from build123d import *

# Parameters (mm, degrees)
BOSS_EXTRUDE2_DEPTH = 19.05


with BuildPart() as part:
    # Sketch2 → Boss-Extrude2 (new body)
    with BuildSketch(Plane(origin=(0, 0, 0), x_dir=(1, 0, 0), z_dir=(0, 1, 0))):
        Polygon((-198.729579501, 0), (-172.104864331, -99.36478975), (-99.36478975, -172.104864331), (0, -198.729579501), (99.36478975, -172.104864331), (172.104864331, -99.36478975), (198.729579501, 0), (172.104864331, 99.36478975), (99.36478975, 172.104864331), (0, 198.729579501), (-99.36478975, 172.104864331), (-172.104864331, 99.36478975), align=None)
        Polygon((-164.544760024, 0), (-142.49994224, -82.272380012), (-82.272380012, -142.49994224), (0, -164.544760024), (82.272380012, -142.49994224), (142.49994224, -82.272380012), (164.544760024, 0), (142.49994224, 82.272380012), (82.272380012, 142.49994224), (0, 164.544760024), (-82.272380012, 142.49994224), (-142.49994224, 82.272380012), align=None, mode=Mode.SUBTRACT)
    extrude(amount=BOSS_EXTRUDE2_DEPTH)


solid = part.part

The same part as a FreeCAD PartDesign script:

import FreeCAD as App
import Part
import Sketcher

V = App.Vector
Q = App.Units.Quantity


def add_polygon(sketch, points):
    """Adds a closed chain of lines whose ends are joined by coincident constraints."""
    first, n = sketch.GeometryCount, len(points)
    for a, b in zip(points, points[1:] + points[:1]):
        sketch.addGeometry(Part.LineSegment(App.Vector(*a, 0), App.Vector(*b, 0)), False)
    for i in range(n):
        sketch.addConstraint(Sketcher.Constraint("Coincident", first + i, 2, first + (i + 1) % n, 1))

doc = App.newDocument("Part")
body = doc.addObject("PartDesign::Body", "Body")

# Sketch on XZ plane
sketch1 = body.newObject("Sketcher::SketchObject", "Sketch")
sketch1.AttachmentSupport = (doc.getObject("XZ_Plane"), [""])
sketch1.MapMode = "FlatFace"
add_polygon(sketch1, [(-198.72958, 0), (-172.104864, 99.36479), (-99.36479, 172.104864), (0, 198.72958), (99.36479, 172.104864), (172.104864, 99.36479), (198.72958, 0), (172.104864, -99.36479), (99.36479, -172.104864), (0, -198.72958), (-99.36479, -172.104864), (-172.104864, -99.36479)])  # lines 0-11
add_polygon(sketch1, [(-142.499942, 82.27238), (-164.54476, 0), (-142.499942, -82.27238), (-82.27238, -142.499942), (0, -164.54476), (82.27238, -142.499942), (142.499942, -82.27238), (164.54476, 0), (142.499942, 82.27238), (82.27238, 142.499942), (0, 164.54476), (-82.27238, 142.499942)])  # lines 12-23
sketch1.addConstraint([
    Sketcher.Constraint("Symmetric", 0, 2, 6, 2, -1, 1),
    Sketcher.Constraint("Symmetric", 1, 2, 7, 2, -1, 1),
    Sketcher.Constraint("Symmetric", 2, 2, 8, 2, -1, 1),
    Sketcher.Constraint("Symmetric", 3, 2, 9, 2, -1, 1),
    Sketcher.Constraint("Symmetric", 4, 2, 10, 2, -1, 1),
    Sketcher.Constraint("Symmetric", 5, 2, 11, 2, -1, 1),
    Sketcher.Constraint("Symmetric", 12, 2, 18, 2, -1, 1),
    Sketcher.Constraint("Symmetric", 13, 2, 19, 2, -1, 1),
    Sketcher.Constraint("Symmetric", 14, 2, 20, 2, -1, 1),
    Sketcher.Constraint("Symmetric", 15, 2, 21, 2, -1, 1),
    Sketcher.Constraint("Symmetric", 16, 2, 22, 2, -1, 1),
    Sketcher.Constraint("Symmetric", 17, 2, 23, 2, -1, 1),
    Sketcher.Constraint("Symmetric", 1, 2, 3, 2, -2),
    Sketcher.Constraint("Symmetric", 0, 2, 4, 2, -2),
    Sketcher.Constraint("Symmetric", 14, 2, 16, 2, -2),
    Sketcher.Constraint("Symmetric", 13, 2, 17, 2, -2),
    Sketcher.Constraint("PointOnObject", 2, 2, -2),
    Sketcher.Constraint("PointOnObject", 5, 2, -1),
    Sketcher.Constraint("PointOnObject", 12, 2, -1),
    Sketcher.Constraint("PointOnObject", 15, 2, -2),
    Sketcher.Constraint("Perpendicular", 0, 3),
    Sketcher.Constraint("Perpendicular", 1, 4),
    Sketcher.Constraint("Perpendicular", 9, 12),
    Sketcher.Constraint("Parallel", 10, 14),
    Sketcher.Constraint("Perpendicular", 12, 15),
    Sketcher.Constraint("Equal", 0, 1),
    Sketcher.Constraint("Equal", 1, 2),
    Sketcher.Constraint("Equal", 13, 14),
    Sketcher.Constraint("Equal", 14, 15),
    Sketcher.Constraint("Angle", 0, Q("75 deg")),
    Sketcher.Constraint("Distance", 0, Q("4.05 in")),
    Sketcher.Constraint("DistanceX", 12, 2, -1, 1, Q("164.54476 mm")),
])
pad1 = body.newObject("PartDesign::Pad", "Pad")
pad1.Profile = sketch1
pad1.Length = Q("0.75 in")
pad1.Reversed = True

doc.recompute()
